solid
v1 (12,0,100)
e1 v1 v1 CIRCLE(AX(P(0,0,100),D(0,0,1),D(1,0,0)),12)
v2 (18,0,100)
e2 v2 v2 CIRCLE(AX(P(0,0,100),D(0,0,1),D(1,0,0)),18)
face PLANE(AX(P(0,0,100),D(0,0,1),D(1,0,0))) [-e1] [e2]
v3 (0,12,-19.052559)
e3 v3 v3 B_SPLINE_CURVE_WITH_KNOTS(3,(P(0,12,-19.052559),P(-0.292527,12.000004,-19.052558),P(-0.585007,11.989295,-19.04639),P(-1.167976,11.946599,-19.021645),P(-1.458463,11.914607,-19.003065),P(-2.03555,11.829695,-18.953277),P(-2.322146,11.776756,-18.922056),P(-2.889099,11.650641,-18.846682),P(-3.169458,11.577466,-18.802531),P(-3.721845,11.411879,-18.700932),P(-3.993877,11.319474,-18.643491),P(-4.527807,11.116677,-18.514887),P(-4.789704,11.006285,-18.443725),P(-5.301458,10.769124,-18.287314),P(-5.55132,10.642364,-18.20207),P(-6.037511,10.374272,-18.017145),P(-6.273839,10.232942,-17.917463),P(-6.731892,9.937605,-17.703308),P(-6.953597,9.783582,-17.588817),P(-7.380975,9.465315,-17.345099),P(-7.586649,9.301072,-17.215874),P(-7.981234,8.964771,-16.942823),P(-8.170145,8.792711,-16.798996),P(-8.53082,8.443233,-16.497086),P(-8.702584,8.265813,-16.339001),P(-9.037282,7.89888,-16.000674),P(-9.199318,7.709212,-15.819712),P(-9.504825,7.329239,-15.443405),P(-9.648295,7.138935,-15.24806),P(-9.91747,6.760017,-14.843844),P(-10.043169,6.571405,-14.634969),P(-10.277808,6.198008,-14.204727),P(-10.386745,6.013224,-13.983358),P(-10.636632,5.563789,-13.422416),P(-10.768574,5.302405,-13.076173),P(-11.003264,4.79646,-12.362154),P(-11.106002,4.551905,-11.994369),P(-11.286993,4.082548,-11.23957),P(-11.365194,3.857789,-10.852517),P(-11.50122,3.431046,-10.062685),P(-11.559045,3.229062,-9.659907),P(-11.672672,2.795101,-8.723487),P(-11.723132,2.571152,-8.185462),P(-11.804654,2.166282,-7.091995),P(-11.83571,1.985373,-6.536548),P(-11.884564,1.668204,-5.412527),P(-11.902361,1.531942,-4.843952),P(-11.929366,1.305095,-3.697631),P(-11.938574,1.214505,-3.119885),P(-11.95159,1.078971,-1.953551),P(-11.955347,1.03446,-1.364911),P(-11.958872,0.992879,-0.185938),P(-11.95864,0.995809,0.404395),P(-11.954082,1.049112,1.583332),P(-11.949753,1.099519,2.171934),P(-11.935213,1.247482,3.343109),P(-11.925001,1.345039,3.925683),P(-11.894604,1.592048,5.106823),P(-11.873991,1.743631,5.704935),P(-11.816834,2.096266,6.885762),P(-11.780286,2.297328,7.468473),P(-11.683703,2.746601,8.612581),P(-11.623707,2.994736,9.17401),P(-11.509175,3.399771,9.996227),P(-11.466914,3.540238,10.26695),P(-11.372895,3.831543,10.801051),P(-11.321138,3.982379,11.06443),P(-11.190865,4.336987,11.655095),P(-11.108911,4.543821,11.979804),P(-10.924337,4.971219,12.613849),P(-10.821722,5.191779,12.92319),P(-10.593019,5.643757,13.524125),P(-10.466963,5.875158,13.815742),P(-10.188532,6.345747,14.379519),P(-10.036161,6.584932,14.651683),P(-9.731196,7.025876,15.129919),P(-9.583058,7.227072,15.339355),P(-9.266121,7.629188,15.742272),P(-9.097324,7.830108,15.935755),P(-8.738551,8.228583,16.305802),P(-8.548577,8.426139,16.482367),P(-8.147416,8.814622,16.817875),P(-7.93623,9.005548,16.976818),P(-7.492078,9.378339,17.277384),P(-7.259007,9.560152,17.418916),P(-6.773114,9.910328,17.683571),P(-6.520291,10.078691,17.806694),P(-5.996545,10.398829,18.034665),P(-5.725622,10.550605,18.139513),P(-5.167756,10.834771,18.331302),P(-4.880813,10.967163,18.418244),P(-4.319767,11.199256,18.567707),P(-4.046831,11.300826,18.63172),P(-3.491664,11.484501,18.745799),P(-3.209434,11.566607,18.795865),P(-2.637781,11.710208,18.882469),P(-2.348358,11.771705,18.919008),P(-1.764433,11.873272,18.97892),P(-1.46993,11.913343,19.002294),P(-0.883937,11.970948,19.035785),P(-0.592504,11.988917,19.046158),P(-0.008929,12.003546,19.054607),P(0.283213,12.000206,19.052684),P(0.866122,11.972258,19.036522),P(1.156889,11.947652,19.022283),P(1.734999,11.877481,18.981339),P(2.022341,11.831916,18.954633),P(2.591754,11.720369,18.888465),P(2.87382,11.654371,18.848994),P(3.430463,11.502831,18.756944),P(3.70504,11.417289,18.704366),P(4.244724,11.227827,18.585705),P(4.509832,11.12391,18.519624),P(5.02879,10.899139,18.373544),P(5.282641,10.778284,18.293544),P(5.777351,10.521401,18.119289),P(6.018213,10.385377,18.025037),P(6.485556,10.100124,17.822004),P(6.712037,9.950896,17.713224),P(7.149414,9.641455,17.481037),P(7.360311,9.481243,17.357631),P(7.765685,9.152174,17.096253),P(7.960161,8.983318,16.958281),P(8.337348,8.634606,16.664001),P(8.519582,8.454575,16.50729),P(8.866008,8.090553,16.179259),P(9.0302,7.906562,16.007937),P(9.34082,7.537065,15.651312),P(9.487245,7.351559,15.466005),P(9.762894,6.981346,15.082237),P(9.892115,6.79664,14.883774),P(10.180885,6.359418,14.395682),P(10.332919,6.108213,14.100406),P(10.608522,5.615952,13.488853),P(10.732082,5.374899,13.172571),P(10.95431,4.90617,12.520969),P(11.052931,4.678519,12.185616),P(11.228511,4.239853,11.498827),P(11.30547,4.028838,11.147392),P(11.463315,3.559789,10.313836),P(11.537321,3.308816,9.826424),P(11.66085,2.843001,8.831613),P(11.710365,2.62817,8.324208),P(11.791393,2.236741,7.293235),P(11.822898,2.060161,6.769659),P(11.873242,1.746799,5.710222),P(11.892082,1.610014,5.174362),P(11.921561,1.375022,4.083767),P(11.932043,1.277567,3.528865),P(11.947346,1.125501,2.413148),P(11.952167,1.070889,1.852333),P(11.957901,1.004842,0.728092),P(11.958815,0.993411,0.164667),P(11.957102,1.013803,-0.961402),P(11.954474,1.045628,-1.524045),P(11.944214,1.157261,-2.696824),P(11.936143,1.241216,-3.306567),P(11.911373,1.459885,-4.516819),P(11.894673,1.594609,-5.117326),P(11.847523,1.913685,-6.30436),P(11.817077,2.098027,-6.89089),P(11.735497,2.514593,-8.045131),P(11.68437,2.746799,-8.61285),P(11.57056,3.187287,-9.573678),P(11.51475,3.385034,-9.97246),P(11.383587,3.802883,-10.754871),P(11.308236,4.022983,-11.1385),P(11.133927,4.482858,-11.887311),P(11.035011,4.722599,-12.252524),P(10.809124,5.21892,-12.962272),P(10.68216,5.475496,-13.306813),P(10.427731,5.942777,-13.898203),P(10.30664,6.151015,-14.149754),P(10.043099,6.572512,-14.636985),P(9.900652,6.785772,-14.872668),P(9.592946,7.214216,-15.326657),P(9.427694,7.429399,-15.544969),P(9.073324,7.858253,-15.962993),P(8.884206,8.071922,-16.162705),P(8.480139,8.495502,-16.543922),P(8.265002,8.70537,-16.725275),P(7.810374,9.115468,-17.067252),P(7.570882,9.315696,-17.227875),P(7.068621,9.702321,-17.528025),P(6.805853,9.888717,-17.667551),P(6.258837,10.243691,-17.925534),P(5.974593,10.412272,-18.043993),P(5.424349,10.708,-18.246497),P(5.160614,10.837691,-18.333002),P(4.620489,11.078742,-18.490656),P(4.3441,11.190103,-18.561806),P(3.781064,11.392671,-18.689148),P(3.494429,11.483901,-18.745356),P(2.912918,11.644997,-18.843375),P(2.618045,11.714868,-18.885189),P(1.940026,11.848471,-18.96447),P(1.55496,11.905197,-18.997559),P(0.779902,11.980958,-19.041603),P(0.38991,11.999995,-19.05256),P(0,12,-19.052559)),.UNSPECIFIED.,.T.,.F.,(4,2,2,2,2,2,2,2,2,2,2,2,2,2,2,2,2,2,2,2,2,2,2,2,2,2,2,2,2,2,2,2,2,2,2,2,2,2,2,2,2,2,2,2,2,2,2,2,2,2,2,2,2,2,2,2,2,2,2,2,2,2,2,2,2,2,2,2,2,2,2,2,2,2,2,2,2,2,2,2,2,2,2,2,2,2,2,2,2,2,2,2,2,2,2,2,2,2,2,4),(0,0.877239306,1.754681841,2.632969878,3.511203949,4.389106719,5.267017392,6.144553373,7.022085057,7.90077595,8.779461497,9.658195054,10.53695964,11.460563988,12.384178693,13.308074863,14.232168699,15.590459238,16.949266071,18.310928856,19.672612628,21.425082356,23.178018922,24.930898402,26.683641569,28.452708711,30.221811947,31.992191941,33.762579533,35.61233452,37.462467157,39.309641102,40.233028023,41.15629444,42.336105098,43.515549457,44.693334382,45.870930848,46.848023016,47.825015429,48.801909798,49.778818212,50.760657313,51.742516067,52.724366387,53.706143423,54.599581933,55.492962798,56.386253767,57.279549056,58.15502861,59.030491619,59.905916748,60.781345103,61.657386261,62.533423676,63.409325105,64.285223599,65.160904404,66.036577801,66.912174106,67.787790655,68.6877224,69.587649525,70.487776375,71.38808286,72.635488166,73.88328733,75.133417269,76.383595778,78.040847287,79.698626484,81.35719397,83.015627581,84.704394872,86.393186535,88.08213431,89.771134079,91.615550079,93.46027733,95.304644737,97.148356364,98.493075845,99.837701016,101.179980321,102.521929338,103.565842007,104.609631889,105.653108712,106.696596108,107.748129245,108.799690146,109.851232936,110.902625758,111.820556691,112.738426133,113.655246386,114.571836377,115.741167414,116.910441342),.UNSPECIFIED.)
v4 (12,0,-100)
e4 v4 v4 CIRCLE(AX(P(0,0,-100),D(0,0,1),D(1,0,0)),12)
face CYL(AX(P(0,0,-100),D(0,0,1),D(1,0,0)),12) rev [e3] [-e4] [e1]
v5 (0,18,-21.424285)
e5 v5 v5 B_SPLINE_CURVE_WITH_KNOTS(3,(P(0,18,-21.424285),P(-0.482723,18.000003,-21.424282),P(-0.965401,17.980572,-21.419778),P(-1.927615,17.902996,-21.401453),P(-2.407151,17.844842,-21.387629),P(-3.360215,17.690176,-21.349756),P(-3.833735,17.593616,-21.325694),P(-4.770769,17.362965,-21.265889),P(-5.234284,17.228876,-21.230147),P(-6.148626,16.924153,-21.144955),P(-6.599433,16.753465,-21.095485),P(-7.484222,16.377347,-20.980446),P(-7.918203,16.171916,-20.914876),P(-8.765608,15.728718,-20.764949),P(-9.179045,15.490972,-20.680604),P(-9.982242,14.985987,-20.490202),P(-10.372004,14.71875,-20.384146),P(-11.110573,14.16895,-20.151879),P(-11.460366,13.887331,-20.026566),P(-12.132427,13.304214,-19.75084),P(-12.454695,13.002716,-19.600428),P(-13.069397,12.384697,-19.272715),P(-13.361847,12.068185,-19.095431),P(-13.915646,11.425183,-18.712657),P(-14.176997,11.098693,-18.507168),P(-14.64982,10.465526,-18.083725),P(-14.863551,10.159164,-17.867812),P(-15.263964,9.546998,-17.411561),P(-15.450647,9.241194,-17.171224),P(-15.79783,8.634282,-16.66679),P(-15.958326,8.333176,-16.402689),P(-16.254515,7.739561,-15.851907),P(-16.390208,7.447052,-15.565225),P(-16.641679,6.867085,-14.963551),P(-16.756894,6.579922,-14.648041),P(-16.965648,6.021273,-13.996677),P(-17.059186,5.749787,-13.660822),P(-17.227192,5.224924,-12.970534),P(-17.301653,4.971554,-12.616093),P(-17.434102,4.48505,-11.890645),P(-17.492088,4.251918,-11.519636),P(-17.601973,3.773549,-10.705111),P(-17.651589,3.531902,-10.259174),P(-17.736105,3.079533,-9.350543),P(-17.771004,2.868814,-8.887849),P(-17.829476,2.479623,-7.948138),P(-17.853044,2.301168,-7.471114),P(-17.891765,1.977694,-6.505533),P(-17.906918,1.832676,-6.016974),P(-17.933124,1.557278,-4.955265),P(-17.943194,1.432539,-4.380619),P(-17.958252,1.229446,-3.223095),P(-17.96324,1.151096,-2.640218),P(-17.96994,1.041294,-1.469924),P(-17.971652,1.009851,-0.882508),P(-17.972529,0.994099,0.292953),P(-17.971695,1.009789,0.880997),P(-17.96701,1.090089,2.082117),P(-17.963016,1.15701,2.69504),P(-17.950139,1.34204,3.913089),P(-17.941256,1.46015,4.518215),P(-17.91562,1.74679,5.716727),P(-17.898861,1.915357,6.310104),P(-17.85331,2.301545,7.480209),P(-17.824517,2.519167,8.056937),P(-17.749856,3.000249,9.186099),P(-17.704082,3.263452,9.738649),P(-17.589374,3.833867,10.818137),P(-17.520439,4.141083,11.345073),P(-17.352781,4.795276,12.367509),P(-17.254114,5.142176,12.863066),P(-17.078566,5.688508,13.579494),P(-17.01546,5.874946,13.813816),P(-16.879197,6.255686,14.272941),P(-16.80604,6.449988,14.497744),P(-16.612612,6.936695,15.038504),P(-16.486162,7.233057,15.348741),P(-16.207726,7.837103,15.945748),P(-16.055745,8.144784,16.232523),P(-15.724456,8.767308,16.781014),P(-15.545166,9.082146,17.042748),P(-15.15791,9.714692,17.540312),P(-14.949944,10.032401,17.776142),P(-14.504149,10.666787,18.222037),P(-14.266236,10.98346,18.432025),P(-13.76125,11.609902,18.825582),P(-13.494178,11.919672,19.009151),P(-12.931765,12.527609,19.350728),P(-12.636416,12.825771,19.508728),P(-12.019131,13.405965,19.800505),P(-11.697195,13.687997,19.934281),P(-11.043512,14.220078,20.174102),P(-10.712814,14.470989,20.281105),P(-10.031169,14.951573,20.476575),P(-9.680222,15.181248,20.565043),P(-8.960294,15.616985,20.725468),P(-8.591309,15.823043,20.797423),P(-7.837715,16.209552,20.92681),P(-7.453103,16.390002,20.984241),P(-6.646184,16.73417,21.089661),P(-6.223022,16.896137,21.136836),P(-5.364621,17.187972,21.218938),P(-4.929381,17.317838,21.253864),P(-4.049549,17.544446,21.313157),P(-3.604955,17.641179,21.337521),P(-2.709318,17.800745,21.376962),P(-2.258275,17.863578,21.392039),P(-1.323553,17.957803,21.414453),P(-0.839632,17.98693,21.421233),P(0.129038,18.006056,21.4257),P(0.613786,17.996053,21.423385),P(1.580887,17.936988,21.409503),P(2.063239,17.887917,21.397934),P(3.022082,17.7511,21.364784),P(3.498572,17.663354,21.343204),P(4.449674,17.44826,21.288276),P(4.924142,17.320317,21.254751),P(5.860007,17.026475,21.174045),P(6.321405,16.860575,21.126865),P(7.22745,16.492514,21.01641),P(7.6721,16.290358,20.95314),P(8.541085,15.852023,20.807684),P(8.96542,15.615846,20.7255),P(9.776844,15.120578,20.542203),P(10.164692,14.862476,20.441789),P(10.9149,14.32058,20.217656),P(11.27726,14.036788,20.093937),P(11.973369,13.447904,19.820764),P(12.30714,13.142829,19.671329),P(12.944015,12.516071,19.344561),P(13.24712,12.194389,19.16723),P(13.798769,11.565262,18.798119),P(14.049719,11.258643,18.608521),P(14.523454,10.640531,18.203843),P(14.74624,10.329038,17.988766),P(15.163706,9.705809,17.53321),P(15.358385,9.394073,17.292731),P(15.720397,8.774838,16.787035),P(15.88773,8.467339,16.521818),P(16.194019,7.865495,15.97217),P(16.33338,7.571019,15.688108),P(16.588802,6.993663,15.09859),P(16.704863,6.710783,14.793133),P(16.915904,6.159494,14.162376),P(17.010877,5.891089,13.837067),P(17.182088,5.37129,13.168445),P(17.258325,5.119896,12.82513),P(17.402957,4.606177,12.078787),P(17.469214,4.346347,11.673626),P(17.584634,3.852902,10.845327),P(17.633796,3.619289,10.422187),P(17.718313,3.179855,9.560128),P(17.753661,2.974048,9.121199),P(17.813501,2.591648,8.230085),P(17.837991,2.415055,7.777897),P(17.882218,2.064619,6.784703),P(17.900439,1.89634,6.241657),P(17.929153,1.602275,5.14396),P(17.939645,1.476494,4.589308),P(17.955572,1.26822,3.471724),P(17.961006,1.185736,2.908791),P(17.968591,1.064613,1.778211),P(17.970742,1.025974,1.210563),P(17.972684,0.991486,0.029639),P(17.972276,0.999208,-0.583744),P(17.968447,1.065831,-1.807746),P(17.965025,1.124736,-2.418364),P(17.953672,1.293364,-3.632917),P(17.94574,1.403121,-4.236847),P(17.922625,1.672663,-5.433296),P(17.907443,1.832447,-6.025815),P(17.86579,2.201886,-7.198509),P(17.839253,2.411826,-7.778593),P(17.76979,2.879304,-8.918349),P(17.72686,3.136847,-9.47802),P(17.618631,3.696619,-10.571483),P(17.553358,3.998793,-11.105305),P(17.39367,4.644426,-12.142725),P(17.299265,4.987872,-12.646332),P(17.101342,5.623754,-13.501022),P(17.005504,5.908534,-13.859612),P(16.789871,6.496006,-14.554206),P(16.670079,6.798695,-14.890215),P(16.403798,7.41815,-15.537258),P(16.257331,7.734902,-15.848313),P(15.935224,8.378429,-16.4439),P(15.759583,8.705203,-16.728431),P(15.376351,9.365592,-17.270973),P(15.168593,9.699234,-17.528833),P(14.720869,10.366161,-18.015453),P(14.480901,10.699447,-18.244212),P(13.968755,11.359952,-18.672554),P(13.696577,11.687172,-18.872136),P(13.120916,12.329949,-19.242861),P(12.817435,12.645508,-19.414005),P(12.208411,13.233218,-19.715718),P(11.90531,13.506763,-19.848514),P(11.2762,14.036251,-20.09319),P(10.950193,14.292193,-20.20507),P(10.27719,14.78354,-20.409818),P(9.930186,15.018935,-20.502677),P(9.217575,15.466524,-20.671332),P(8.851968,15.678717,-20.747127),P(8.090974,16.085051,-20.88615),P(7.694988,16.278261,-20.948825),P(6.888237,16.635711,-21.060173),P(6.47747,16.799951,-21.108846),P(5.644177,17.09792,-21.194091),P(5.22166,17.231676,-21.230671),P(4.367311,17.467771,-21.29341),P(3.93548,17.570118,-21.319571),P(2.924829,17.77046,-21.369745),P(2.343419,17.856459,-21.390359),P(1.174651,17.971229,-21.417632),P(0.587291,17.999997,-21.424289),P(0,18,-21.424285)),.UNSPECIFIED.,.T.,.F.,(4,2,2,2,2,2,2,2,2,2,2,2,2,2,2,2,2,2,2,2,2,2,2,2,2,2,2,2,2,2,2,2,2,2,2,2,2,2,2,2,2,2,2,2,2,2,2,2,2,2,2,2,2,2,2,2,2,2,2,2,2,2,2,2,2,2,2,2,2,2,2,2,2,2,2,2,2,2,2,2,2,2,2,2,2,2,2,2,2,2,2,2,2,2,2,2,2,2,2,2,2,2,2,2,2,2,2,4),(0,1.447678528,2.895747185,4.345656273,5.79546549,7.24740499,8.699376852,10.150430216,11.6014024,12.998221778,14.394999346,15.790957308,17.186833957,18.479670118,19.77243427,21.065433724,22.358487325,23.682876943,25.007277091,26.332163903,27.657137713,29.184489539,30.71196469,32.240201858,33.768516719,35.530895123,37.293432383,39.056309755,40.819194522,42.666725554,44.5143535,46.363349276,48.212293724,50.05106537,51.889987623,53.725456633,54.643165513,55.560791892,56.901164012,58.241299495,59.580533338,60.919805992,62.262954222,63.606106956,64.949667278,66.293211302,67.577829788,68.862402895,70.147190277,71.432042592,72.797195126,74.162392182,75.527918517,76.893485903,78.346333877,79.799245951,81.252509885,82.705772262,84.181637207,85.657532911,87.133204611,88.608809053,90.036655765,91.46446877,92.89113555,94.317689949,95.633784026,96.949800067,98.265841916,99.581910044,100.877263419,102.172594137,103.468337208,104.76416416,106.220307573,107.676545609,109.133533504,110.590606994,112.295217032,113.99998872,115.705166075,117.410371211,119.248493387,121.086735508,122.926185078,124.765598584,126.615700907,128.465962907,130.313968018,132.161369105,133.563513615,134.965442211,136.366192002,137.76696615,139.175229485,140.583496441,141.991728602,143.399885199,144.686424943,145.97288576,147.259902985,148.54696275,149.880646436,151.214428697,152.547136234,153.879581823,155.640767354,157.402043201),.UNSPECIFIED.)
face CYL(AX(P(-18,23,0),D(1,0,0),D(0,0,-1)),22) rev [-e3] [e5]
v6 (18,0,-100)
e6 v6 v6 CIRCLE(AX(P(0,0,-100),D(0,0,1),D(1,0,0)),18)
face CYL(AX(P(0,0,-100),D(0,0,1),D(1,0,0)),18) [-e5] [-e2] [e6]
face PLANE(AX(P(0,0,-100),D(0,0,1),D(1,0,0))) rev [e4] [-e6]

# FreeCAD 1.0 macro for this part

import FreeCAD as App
import Part
import Sketcher

V = App.Vector

doc = App.newDocument("Part")
params = doc.addObject("Spreadsheet::Sheet", "Params")
for row, (alias, value) in enumerate([
    ("sketch1_diameter", "36 mm"),
    ("sketch1_diameter2", "24 mm"),
    ("pad1_length", "100 mm"),
    ("pad1_length2", "100 mm"),
    ("sketch2_diameter", "44 mm"),
], start=1):
    params.set(f"A{row}", alias)
    params.set(f"B{row}", "=" + value)
    params.setAlias(f"B{row}", alias)

body = doc.addObject("PartDesign::Body", "Body")

# Sketch on XY plane
sketch1 = body.newObject("Sketcher::SketchObject", "Sketch")
sketch1.AttachmentSupport = (doc.getObject("XY_Plane"), [""])
sketch1.MapMode = "FlatFace"
sketch1.addGeometry([
    Part.Circle(V(0, 0, 0), V(0, 0, 1), 18),
    Part.Circle(V(0, 0, 0), V(0, 0, 1), 12),
], False)
sketch1.addConstraint([
    Sketcher.Constraint("Coincident", 0, 3, -1, 1),
    Sketcher.Constraint("Coincident", 1, 3, -1, 1),
    Sketcher.Constraint("Diameter", 0, 36.0),
    Sketcher.Constraint("Diameter", 1, 24.0),
])
sketch1.setExpression("Constraints[2]", "Params.sketch1_diameter")
sketch1.setExpression("Constraints[3]", "Params.sketch1_diameter2")
pad1 = body.newObject("PartDesign::Pad", "Pad")
pad1.Profile = sketch1
pad1.Type = "TwoLengths"
pad1.setExpression("Length", "Params.pad1_length")
pad1.setExpression("Length2", "Params.pad1_length2")

# Sketch on YZ plane
sketch2 = body.newObject("Sketcher::SketchObject", "Sketch001")
sketch2.AttachmentSupport = (doc.getObject("YZ_Plane"), [""])
sketch2.MapMode = "FlatFace"
sketch2.addGeometry(Part.Circle(V(23, 0, 0), V(0, 0, 1), 22), False)
sketch2.addConstraint([
    Sketcher.Constraint("PointOnObject", 0, 3, -1),
    Sketcher.Constraint("Diameter", 0, 44.0),
    Sketcher.Constraint("DistanceX", -1, 1, 0, 3, 23.0),
])
sketch2.setExpression("Constraints[1]", "Params.sketch2_diameter")
pocket1 = body.newObject("PartDesign::Pocket", "Pocket")
pocket1.Profile = sketch2
pocket1.Type = "ThroughAll"
pocket1.Midplane = True

doc.recompute()
